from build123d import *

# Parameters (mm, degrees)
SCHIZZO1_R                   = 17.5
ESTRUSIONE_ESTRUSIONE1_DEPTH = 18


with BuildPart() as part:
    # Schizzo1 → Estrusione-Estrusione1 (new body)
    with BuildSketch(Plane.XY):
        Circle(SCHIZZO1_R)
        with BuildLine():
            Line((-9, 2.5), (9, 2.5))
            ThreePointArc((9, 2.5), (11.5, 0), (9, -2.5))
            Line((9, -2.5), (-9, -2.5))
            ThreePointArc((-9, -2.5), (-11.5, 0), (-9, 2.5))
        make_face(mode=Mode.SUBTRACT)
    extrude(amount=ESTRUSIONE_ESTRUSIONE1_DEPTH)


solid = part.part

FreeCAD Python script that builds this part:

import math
import FreeCAD as App
import Part
import Sketcher

V = App.Vector

doc = App.newDocument("Part")
body = doc.addObject("PartDesign::Body", "Body")

sketch1 = body.newObject("Sketcher::SketchObject", "Sketch")
sketch1.AttachmentSupport = (doc.getObject("XY_Plane"), [""])
sketch1.MapMode = "FlatFace"
sketch1.addGeometry(Part.Circle(V(0, 0, 0), V(0, 0, 1), 17.5), False)
sketch1.addGeometry(Part.ArcOfCircle(Part.Circle(V(-9, 0, 0), V(0, 0, 1), 2.5), math.radians(90), math.radians(270)), False)
sketch1.addGeometry(Part.LineSegment(V(-9, 2.5, 0), V(9, 2.5, 0)), False)
sketch1.addGeometry(Part.ArcOfCircle(Part.Circle(V(9, 0, 0), V(0, 0, 1), 2.5), math.radians(-90), math.radians(90)), False)
sketch1.addGeometry(Part.LineSegment(V(9, -2.5, 0), V(-9, -2.5, 0)), False)
sketch1.addConstraint(Sketcher.Constraint("Tangent", 1, 1, 2, 1))
sketch1.addConstraint(Sketcher.Constraint("Tangent", 2, 2, 3, 2))
sketch1.addConstraint(Sketcher.Constraint("Tangent", 3, 1, 4, 1))
sketch1.addConstraint(Sketcher.Constraint("Tangent", 4, 2, 1, 2))
sketch1.addConstraint(Sketcher.Constraint("Horizontal", 2))
sketch1.addConstraint(Sketcher.Constraint("Horizontal", 4))
sketch1.addConstraint(Sketcher.Constraint("Coincident", 0, 3, -1, 1))
sketch1.addConstraint(Sketcher.Constraint("Symmetric", 1, 3, 3, 3, -1, 1))
sketch1.addConstraint(Sketcher.Constraint("Diameter", 0, 35.0))
sketch1.addConstraint(Sketcher.Constraint("Radius", 1, 2.5))
sketch1.addConstraint(Sketcher.Constraint("DistanceX", 2, 1, 2, 2, 18.0))
pad1 = body.newObject("PartDesign::Pad", "Pad")
pad1.Profile = sketch1
pad1.Length = 18

doc.recompute()
